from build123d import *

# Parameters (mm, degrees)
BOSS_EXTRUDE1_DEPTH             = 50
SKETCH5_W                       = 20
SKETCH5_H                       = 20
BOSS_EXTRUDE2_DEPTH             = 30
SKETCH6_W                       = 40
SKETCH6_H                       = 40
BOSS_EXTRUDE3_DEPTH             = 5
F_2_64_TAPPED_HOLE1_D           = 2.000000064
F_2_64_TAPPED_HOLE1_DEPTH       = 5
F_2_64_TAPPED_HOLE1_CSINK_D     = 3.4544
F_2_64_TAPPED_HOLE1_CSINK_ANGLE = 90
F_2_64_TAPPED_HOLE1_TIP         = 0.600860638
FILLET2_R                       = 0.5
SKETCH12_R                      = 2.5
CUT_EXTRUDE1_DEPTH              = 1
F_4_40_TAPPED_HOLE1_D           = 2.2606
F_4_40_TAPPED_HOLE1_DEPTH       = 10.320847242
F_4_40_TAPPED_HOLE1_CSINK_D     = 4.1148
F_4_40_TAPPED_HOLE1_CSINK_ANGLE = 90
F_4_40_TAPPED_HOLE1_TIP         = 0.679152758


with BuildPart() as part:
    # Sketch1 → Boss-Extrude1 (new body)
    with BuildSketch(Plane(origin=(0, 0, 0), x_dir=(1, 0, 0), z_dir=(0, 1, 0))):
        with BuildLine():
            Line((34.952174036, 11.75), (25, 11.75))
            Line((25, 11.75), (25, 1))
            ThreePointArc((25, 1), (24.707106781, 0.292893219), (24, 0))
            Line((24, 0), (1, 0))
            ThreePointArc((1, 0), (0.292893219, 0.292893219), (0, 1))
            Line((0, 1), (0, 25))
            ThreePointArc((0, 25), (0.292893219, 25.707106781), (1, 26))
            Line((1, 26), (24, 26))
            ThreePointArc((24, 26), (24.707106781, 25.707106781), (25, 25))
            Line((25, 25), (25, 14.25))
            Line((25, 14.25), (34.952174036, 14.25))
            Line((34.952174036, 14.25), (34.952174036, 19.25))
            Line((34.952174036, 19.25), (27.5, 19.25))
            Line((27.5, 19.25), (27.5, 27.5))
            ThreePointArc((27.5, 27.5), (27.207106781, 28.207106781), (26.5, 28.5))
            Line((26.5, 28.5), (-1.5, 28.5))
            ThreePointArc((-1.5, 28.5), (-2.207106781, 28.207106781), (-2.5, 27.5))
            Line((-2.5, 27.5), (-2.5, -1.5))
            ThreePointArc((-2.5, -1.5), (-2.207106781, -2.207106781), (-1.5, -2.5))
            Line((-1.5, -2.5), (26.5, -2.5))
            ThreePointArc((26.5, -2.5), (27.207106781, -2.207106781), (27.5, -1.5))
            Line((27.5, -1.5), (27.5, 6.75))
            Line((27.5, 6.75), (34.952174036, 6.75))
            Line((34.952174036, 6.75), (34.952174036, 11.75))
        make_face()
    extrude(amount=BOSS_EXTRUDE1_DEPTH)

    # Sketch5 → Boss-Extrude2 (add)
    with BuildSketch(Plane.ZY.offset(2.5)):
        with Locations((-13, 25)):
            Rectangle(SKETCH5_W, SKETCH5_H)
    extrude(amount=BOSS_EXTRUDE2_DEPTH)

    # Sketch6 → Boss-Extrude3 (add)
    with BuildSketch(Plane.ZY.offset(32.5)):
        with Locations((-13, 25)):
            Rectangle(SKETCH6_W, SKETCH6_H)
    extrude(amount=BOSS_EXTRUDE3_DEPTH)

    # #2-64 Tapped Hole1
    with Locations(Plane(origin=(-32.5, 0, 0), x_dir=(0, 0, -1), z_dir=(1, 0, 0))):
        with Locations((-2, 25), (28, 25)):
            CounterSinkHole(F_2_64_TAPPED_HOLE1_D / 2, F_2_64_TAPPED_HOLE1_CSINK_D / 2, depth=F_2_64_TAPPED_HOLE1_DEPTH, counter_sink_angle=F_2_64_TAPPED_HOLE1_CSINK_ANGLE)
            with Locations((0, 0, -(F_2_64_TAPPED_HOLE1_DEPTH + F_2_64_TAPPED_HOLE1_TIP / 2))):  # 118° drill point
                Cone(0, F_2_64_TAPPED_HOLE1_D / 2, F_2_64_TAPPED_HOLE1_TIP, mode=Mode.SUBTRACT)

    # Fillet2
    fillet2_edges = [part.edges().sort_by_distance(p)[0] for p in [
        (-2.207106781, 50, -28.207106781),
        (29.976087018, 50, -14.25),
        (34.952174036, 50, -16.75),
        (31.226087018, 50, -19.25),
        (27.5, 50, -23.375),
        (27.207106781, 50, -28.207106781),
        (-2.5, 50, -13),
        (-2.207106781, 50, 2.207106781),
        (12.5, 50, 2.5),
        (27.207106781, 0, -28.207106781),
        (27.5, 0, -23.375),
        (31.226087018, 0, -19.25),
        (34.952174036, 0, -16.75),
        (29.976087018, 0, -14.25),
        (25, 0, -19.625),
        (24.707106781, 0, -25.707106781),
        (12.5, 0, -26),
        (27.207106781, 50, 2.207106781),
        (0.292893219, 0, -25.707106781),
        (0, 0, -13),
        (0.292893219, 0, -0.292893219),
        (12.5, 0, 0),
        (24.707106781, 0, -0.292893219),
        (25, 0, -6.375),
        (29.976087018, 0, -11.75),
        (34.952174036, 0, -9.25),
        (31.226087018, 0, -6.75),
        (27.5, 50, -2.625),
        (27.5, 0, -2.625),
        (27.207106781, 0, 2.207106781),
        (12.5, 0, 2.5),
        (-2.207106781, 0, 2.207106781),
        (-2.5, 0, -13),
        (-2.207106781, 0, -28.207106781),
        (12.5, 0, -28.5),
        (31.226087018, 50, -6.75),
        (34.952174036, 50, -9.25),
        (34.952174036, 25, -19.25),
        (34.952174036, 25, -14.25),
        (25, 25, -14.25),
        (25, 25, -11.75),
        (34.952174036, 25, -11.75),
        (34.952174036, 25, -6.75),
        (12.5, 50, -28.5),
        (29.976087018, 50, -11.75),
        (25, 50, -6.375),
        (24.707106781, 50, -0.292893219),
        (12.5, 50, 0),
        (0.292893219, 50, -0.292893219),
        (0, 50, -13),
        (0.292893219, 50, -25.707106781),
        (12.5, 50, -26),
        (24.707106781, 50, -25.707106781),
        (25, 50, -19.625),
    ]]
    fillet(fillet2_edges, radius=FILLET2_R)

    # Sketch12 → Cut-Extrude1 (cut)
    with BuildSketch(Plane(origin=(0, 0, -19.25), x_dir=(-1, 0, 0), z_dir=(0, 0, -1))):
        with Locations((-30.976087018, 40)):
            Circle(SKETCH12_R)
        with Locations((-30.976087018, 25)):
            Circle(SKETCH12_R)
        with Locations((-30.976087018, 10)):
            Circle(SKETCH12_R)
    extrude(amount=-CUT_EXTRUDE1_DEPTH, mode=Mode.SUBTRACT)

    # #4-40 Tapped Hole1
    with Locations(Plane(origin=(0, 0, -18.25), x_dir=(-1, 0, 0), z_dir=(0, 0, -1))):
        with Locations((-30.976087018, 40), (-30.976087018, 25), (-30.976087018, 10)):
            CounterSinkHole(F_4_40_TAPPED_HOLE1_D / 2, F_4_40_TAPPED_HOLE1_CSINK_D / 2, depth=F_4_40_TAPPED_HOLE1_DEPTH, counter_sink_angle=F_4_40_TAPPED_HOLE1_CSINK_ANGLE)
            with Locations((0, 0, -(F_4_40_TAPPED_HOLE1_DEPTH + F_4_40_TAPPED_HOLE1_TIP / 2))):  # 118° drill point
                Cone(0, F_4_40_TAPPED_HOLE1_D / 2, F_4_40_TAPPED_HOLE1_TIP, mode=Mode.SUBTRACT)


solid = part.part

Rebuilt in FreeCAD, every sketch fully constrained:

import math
import FreeCAD as App
import Part
import Sketcher
from FreeCAD import Vector


def edges_at(feature, points):
    """Names of the edges that pass closest to the given points."""
    edges = feature.Shape.Edges
    near = lambda p: min(range(len(edges)), key=lambda i: edges[i].distToShape(Part.Vertex(*p))[0])
    return sorted({f"Edge{near(p) + 1}" for p in points})


def add_polygon(sketch, points):
    """Adds a closed chain of lines whose ends are joined by coincident constraints."""
    first, n = sketch.GeometryCount, len(points)
    for a, b in zip(points, points[1:] + points[:1]):
        sketch.addGeometry(Part.LineSegment(App.Vector(*a, 0), App.Vector(*b, 0)), False)
    for i in range(n):
        sketch.addConstraint(Sketcher.Constraint("Coincident", first + i, 2, first + (i + 1) % n, 1))

doc = App.newDocument("Part")
body = doc.addObject("PartDesign::Body", "Body")

# Sketch on XZ plane
sketch1 = doc.addObject("Sketcher::SketchObject", "Sketch")
body.addObject(sketch1)
sketch1.AttachmentSupport = (doc.XZ_Plane, [""])
sketch1.MapMode = "FlatFace"
sketch1.addGeometry([
    Part.LineSegment(Vector(35, -11.8, 0), Vector(25, -11.8, 0)),  # 0
    Part.LineSegment(Vector(25, -11.8, 0), Vector(25, -1, 0)),  # 1
    Part.ArcOfCircle(Part.Circle(Vector(24, -1, 0), Vector(0, 0, 1), 1), math.radians(0), math.radians(90)),  # 2
    Part.LineSegment(Vector(24, 0, 0), Vector(1, 0, 0)),  # 3
    Part.ArcOfCircle(Part.Circle(Vector(1, -1, 0), Vector(0, 0, 1), 1), math.radians(90), math.radians(180)),  # 4
    Part.LineSegment(Vector(0, -1, 0), Vector(0, -25, 0)),  # 5
    Part.ArcOfCircle(Part.Circle(Vector(1, -25, 0), Vector(0, 0, 1), 1), math.radians(-180), math.radians(-90)),  # 6
    Part.LineSegment(Vector(1, -26, 0), Vector(24, -26, 0)),  # 7
    Part.ArcOfCircle(Part.Circle(Vector(24, -25, 0), Vector(0, 0, 1), 1), math.radians(-90), math.radians(0)),  # 8
    Part.LineSegment(Vector(25, -25, 0), Vector(25, -14.2, 0)),  # 9
    Part.LineSegment(Vector(25, -14.2, 0), Vector(35, -14.2, 0)),  # 10
    Part.LineSegment(Vector(35, -14.2, 0), Vector(35, -19.2, 0)),  # 11
    Part.LineSegment(Vector(35, -19.2, 0), Vector(27.5, -19.2, 0)),  # 12
    Part.LineSegment(Vector(27.5, -19.2, 0), Vector(27.5, -27.5, 0)),  # 13
    Part.ArcOfCircle(Part.Circle(Vector(26.5, -27.5, 0), Vector(0, 0, 1), 1), math.radians(-90), math.radians(0)),  # 14
    Part.LineSegment(Vector(26.5, -28.5, 0), Vector(-1.5, -28.5, 0)),  # 15
    Part.ArcOfCircle(Part.Circle(Vector(-1.5, -27.5, 0), Vector(0, 0, 1), 1), math.radians(-180), math.radians(-90)),  # 16
    Part.LineSegment(Vector(-2.5, -27.5, 0), Vector(-2.5, 1.5, 0)),  # 17
    Part.ArcOfCircle(Part.Circle(Vector(-1.5, 1.5, 0), Vector(0, 0, 1), 1), math.radians(90), math.radians(180)),  # 18
    Part.LineSegment(Vector(-1.5, 2.5, 0), Vector(26.5, 2.5, 0)),  # 19
    Part.ArcOfCircle(Part.Circle(Vector(26.5, 1.5, 0), Vector(0, 0, 1), 1), math.radians(0), math.radians(90)),  # 20
    Part.LineSegment(Vector(27.5, 1.5, 0), Vector(27.5, -6.8, 0)),  # 21
    Part.LineSegment(Vector(27.5, -6.8, 0), Vector(35, -6.8, 0)),  # 22
    Part.LineSegment(Vector(35, -6.8, 0), Vector(35, -11.8, 0)),  # 23
], False)
sketch1.addConstraint([
    Sketcher.Constraint("Coincident", 0, 2, 1, 1),
    Sketcher.Constraint("Tangent", 1, 2, 2, 1),
    Sketcher.Constraint("Tangent", 2, 2, 3, 1),
    Sketcher.Constraint("Tangent", 3, 2, 4, 1),
    Sketcher.Constraint("Tangent", 4, 2, 5, 1),
    Sketcher.Constraint("Tangent", 5, 2, 6, 1),
    Sketcher.Constraint("Tangent", 6, 2, 7, 1),
    Sketcher.Constraint("Tangent", 7, 2, 8, 1),
    Sketcher.Constraint("Tangent", 8, 2, 9, 1),
    Sketcher.Constraint("Coincident", 9, 2, 10, 1),
    Sketcher.Constraint("Coincident", 10, 2, 11, 1),
    Sketcher.Constraint("Coincident", 11, 2, 12, 1),
    Sketcher.Constraint("Coincident", 12, 2, 13, 1),
    Sketcher.Constraint("Tangent", 13, 2, 14, 2),
    Sketcher.Constraint("Tangent", 14, 1, 15, 1),
    Sketcher.Constraint("Tangent", 15, 2, 16, 2),
    Sketcher.Constraint("Tangent", 16, 1, 17, 1),
    Sketcher.Constraint("Tangent", 17, 2, 18, 2),
    Sketcher.Constraint("Tangent", 18, 1, 19, 1),
    Sketcher.Constraint("Tangent", 19, 2, 20, 2),
    Sketcher.Constraint("Tangent", 20, 1, 21, 1),
    Sketcher.Constraint("Coincident", 21, 2, 22, 1),
    Sketcher.Constraint("Coincident", 22, 2, 23, 1),
    Sketcher.Constraint("Coincident", 23, 2, 0, 1),
    Sketcher.Constraint("Horizontal", 0),
    Sketcher.Constraint("Vertical", 1),
    Sketcher.Constraint("Horizontal", 3),
    Sketcher.Constraint("Vertical", 5),
    Sketcher.Constraint("Horizontal", 7),
    Sketcher.Constraint("Vertical", 9),
    Sketcher.Constraint("Horizontal", 10),
    Sketcher.Constraint("Vertical", 11),
    Sketcher.Constraint("Horizontal", 12),
    Sketcher.Constraint("Vertical", 13),
    Sketcher.Constraint("Horizontal", 15),
    Sketcher.Constraint("Vertical", 17),
    Sketcher.Constraint("Horizontal", 19),
    Sketcher.Constraint("Vertical", 21),
    Sketcher.Constraint("Horizontal", 22),
    Sketcher.Constraint("Vertical", 23),
    Sketcher.Constraint("Equal", 2, 4),
    Sketcher.Constraint("Equal", 4, 6),
    Sketcher.Constraint("Equal", 6, 8),
    Sketcher.Constraint("Equal", 8, 14),
    Sketcher.Constraint("Equal", 14, 16),
    Sketcher.Constraint("Equal", 16, 18),
    Sketcher.Constraint("Equal", 18, 20),
    Sketcher.Constraint("PointOnObject", 2, 2, -1),
    Sketcher.Constraint("PointOnObject", 4, 2, -2),
    Sketcher.Constraint("Vertical", 2, 3, 8, 3),
    Sketcher.Constraint("Vertical", 14, 3, 20, 3),
    Sketcher.Constraint("Vertical", 11, 2, 22, 2),
    Sketcher.Constraint("Equal", 1, 9),
    Sketcher.Constraint("Equal", 13, 21),
    Sketcher.Constraint("Equal", 11, 23),
    Sketcher.Constraint("Radius", 2, 1.0),
    Sketcher.Constraint("DistanceX", 3, 2, 3, 1, 23.0),
    Sketcher.Constraint("DistanceX", 15, 2, 15, 1, 28.0),
    Sketcher.Constraint("DistanceY", 5, 2, 5, 1, 24.0),
    Sketcher.Constraint("DistanceY", 11, 2, 11, 1, 5.0),
    Sketcher.Constraint("DistanceY", 17, 1, 17, 2, 29.0),
    Sketcher.Constraint("DistanceY", 1, 1, 1, 2, 10.75),
    Sketcher.Constraint("DistanceX", -1, 1, 14, 3, 26.5),
    Sketcher.Constraint("DistanceX", 0, 2, 0, 1, 9.952174),
])
pad1 = doc.addObject("PartDesign::Pad", "Pad")
body.addObject(pad1)
pad1.Profile = sketch1
pad1.Length = 50
pad1.Reversed = True

# Sketch on YZ plane
sketch2 = doc.addObject("Sketcher::SketchObject", "Sketch001")
body.addObject(sketch2)
sketch2.AttachmentSupport = (doc.YZ_Plane, [""])
sketch2.MapMode = "FlatFace"
sketch2.AttachmentOffset = App.Placement(Vector(0, 0, -2.5), App.Rotation())
add_polygon(sketch2, [(35, -23), (15, -23), (15, -3), (35, -3)])  # lines 0-3
sketch2.addConstraint([
    Sketcher.Constraint("Horizontal", 0),
    Sketcher.Constraint("Vertical", 1),
    Sketcher.Constraint("Horizontal", 2),
    Sketcher.Constraint("Vertical", 3),
    Sketcher.Constraint("Equal", 2, 1),
    Sketcher.Constraint("DistanceX", 0, 2, 0, 1, 20.0),
    Sketcher.Constraint("DistanceX", -1, 1, 0, 2, 15.0),
    Sketcher.Constraint("DistanceY", 0, 2, -1, 1, 23.0),
])
pad2 = doc.addObject("PartDesign::Pad", "Pad001")
body.addObject(pad2)
pad2.Profile = sketch2
pad2.Length = 30
pad2.Reversed = True

# Sketch on YZ plane
sketch3 = doc.addObject("Sketcher::SketchObject", "Sketch002")
body.addObject(sketch3)
sketch3.AttachmentSupport = (doc.YZ_Plane, [""])
sketch3.MapMode = "FlatFace"
sketch3.AttachmentOffset = App.Placement(Vector(0, 0, -32.5), App.Rotation())
add_polygon(sketch3, [(45, -33), (5, -33), (5, 7), (45, 7)])  # lines 0-3
sketch3.addConstraint([
    Sketcher.Constraint("Horizontal", 0),
    Sketcher.Constraint("Vertical", 1),
    Sketcher.Constraint("Horizontal", 2),
    Sketcher.Constraint("Vertical", 3),
    Sketcher.Constraint("Equal", 2, 1),
    Sketcher.Constraint("DistanceX", 0, 2, 0, 1, 40.0),
    Sketcher.Constraint("DistanceX", -1, 1, 0, 2, 5.0),
    Sketcher.Constraint("DistanceY", 0, 2, -1, 1, 33.0),
])
pad3 = doc.addObject("PartDesign::Pad", "Pad002")
body.addObject(pad3)
pad3.Profile = sketch3
pad3.Length = 5
pad3.Reversed = True

# Sketch on YZ plane
sketch4 = doc.addObject("Sketcher::SketchObject", "Sketch003")
body.addObject(sketch4)
sketch4.AttachmentSupport = (doc.YZ_Plane, [""])
sketch4.MapMode = "FlatFace"
sketch4.AttachmentOffset = App.Placement(Vector(0, 0, -32.5), App.Rotation())
sketch4.addGeometry([
    Part.Circle(Vector(25, 2, 0), Vector(0, 0, 1), 1),
    Part.Circle(Vector(25, -28, 0), Vector(0, 0, 1), 1),
], False)
sketch4.addConstraint([
    Sketcher.Constraint("Equal", 0, 1),
    Sketcher.Constraint("Vertical", 0, 3, 1, 3),
    Sketcher.Constraint("Diameter", 0, 2.0),
    Sketcher.Constraint("DistanceX", -1, 1, 0, 3, 25.0),
    Sketcher.Constraint("DistanceY", -1, 1, 0, 3, 2.0),
    Sketcher.Constraint("DistanceY", 1, 3, -1, 1, 28.0),
])
doc.recompute()
hole = doc.addObject("PartDesign::Hole", "Hole")
body.addObject(hole)
hole.Profile = sketch4
hole.ThreadType = "None"
hole.Diameter = 2
hole.DepthType = "Dimension"
hole.Depth = 5
hole.DrillPoint = "Angled"
hole.DrillPointAngle = 118
hole.HoleCutType = "Countersink"
hole.HoleCutDiameter = 3.4544
hole.HoleCutCountersinkAngle = 90
doc.recompute()

fillet = doc.addObject("PartDesign::Fillet", "Fillet")
body.addObject(fillet)
fillet.Base = (hole, edges_at(hole, [
    (-2.207, 50, -28.207),
    (29.976, 50, -14.25),
    (34.952, 50, -16.75),
    (31.226, 50, -19.25),
    (27.5, 50, -23.375),
    (27.207, 50, -28.207),
    (-2.5, 50, -13),
    (-2.207, 50, 2.207),
    (12.5, 50, 2.5),
    (27.207, 0, -28.207),
    (27.5, 0, -23.375),
    (31.226, 0, -19.25),
    (34.952, 0, -16.75),
    (29.976, 0, -14.25),
    (25, 0, -19.625),
    (24.707, 0, -25.707),
    (12.5, 0, -26),
    (27.207, 50, 2.207),
    (0.293, 0, -25.707),
    (0, 0, -13),
    (0.293, 0, -0.293),
    (12.5, 0, 0),
    (24.707, 0, -0.293),
    (25, 0, -6.375),
    (29.976, 0, -11.75),
    (34.952, 0, -9.25),
    (31.226, 0, -6.75),
    (27.5, 50, -2.625),
    (27.5, 0, -2.625),
    (27.207, 0, 2.207),
    (12.5, 0, 2.5),
    (-2.207, 0, 2.207),
    (-2.5, 0, -13),
    (-2.207, 0, -28.207),
    (12.5, 0, -28.5),
    (31.226, 50, -6.75),
    (34.952, 50, -9.25),
    (34.952, 25, -19.25),
    (34.952, 25, -14.25),
    (25, 25, -14.25),
    (25, 25, -11.75),
    (34.952, 25, -11.75),
    (34.952, 25, -6.75),
    (12.5, 50, -28.5),
    (29.976, 50, -11.75),
    (25, 50, -6.375),
    (24.707, 50, -0.293),
    (12.5, 50, 0),
    (0.293, 50, -0.293),
    (0, 50, -13),
    (0.293, 50, -25.707),
    (12.5, 50, -26),
    (24.707, 50, -25.707),
    (25, 50, -19.625),
]))
fillet.Radius = 0.5

# Sketch on XY plane
sketch5 = doc.addObject("Sketcher::SketchObject", "Sketch004")
body.addObject(sketch5)
sketch5.AttachmentSupport = (doc.XY_Plane, [""])
sketch5.MapMode = "FlatFace"
sketch5.AttachmentOffset = App.Placement(Vector(0, 0, -19.25), App.Rotation())
sketch5.addGeometry([
    Part.Circle(Vector(31, 40, 0), Vector(0, 0, 1), 2.5),
    Part.Circle(Vector(31, 25, 0), Vector(0, 0, 1), 2.5),
    Part.Circle(Vector(31, 10, 0), Vector(0, 0, 1), 2.5),
], False)
sketch5.addConstraint([
    Sketcher.Constraint("Equal", 0, 1),
    Sketcher.Constraint("Equal", 1, 2),
    Sketcher.Constraint("Vertical", 0, 3, 1, 3),
    Sketcher.Constraint("Vertical", 1, 3, 2, 3),
    Sketcher.Constraint("Diameter", 0, 5.0),
    Sketcher.Constraint("DistanceY", -1, 1, 0, 3, 40.0),
    Sketcher.Constraint("DistanceY", -1, 1, 1, 3, 25.0),
    Sketcher.Constraint("DistanceY", -1, 1, 2, 3, 10.0),
    Sketcher.Constraint("DistanceX", -1, 1, 0, 3, 30.976087),
])
pocket1 = doc.addObject("PartDesign::Pocket", "Pocket")
body.addObject(pocket1)
pocket1.Profile = sketch5
pocket1.Length = 1
pocket1.Reversed = True

# Sketch on XY plane
sketch6 = doc.addObject("Sketcher::SketchObject", "Sketch005")
body.addObject(sketch6)
sketch6.AttachmentSupport = (doc.XY_Plane, [""])
sketch6.MapMode = "FlatFace"
sketch6.AttachmentOffset = App.Placement(Vector(0, 0, -18.25), App.Rotation())
sketch6.addGeometry([
    Part.Circle(Vector(31, 40, 0), Vector(0, 0, 1), 1.1),
    Part.Circle(Vector(31, 25, 0), Vector(0, 0, 1), 1.1),
    Part.Circle(Vector(31, 10, 0), Vector(0, 0, 1), 1.1),
], False)
sketch6.addConstraint([
    Sketcher.Constraint("Equal", 0, 1),
    Sketcher.Constraint("Equal", 1, 2),
    Sketcher.Constraint("Vertical", 0, 3, 1, 3),
    Sketcher.Constraint("Vertical", 1, 3, 2, 3),
    Sketcher.Constraint("DistanceY", -1, 1, 0, 3, 40.0),
    Sketcher.Constraint("DistanceY", -1, 1, 1, 3, 25.0),
    Sketcher.Constraint("DistanceY", -1, 1, 2, 3, 10.0),
    Sketcher.Constraint("Diameter", 0, 2.2606),
    Sketcher.Constraint("DistanceX", -1, 1, 0, 3, 30.976087),
])
doc.recompute()
hole2 = doc.addObject("PartDesign::Hole", "Hole001")
body.addObject(hole2)
hole2.Profile = sketch6
hole2.ThreadType = "None"
hole2.Diameter = 2.2606
hole2.DepthType = "Dimension"
hole2.Depth = 10.320847
hole2.DrillPoint = "Angled"
hole2.DrillPointAngle = 118
hole2.HoleCutType = "Countersink"
hole2.HoleCutDiameter = 4.1148
hole2.HoleCutCountersinkAngle = 90
hole2.Reversed = True

doc.recompute()
